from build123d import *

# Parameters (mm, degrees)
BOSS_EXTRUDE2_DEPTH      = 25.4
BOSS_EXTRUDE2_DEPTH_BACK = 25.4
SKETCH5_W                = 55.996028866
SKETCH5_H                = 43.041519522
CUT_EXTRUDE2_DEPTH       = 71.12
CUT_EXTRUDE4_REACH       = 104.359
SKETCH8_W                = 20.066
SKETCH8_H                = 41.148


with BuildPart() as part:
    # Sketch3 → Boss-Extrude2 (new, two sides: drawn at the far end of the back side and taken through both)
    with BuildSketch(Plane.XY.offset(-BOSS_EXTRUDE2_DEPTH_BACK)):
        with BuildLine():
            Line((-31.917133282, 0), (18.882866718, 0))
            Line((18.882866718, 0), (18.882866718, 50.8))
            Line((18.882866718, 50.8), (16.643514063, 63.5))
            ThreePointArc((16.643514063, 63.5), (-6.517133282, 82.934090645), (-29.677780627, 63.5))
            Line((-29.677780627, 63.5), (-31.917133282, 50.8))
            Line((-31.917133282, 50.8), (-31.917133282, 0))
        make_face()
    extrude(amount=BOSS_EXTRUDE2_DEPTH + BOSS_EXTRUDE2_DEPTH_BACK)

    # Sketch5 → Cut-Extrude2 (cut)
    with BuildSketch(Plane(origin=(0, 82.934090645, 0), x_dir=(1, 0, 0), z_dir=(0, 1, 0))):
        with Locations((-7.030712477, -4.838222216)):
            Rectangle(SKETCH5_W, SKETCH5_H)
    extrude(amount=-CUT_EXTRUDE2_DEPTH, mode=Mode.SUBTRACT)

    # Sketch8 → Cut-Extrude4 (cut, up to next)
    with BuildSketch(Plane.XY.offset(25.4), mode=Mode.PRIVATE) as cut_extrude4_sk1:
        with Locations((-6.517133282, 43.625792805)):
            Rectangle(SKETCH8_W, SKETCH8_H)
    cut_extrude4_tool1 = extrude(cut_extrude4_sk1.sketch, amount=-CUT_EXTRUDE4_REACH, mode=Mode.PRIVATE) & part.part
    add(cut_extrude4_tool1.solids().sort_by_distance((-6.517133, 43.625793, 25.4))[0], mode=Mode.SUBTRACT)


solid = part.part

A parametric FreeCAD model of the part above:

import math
import FreeCAD as App
import Part
import Sketcher
from FreeCAD import Vector
Q = App.Units.Quantity


def add_polygon(sketch, points):
    """Adds a closed chain of lines whose ends are joined by coincident constraints."""
    first, n = sketch.GeometryCount, len(points)
    for a, b in zip(points, points[1:] + points[:1]):
        sketch.addGeometry(Part.LineSegment(App.Vector(*a, 0), App.Vector(*b, 0)), False)
    for i in range(n):
        sketch.addConstraint(Sketcher.Constraint("Coincident", first + i, 2, first + (i + 1) % n, 1))

doc = App.newDocument("Part")
body = doc.addObject("PartDesign::Body", "Body")

# Sketch on XY plane
sketch1 = body.newObject("Sketcher::SketchObject", "Sketch")
sketch1.AttachmentSupport = (doc.getObject("XY_Plane"), [""])
sketch1.MapMode = "FlatFace"
sketch1.addGeometry([
    Part.LineSegment(Vector(-32, 0, 0), Vector(19, 0, 0)),  # 0
    Part.LineSegment(Vector(19, 0, 0), Vector(19, 51, 0)),  # 1
    Part.LineSegment(Vector(19, 51, 0), Vector(17, 64, 0)),  # 2
    Part.ArcOfCircle(Part.Circle(Vector(-7, 59, 0), Vector(0, 0, 1), 24), math.radians(10), math.radians(170)),  # 3
    Part.LineSegment(Vector(-30, 64, 0), Vector(-32, 51, 0)),  # 4
    Part.LineSegment(Vector(-32, 51, 0), Vector(-32, 0, 0)),  # 5
], False)
sketch1.addConstraint([
    Sketcher.Constraint("Coincident", 0, 2, 1, 1),
    Sketcher.Constraint("Coincident", 1, 2, 2, 1),
    Sketcher.Constraint("Tangent", 2, 2, 3, 1),
    Sketcher.Constraint("Tangent", 3, 2, 4, 1),
    Sketcher.Constraint("Coincident", 4, 2, 5, 1),
    Sketcher.Constraint("Coincident", 5, 2, 0, 1),
    Sketcher.Constraint("Horizontal", 0),
    Sketcher.Constraint("Vertical", 1),
    Sketcher.Constraint("Vertical", 5),
    Sketcher.Constraint("PointOnObject", 0, 2, -1),
    Sketcher.Constraint("Horizontal", 2, 2, 3, 2),
    Sketcher.Constraint("Horizontal", 1, 2, 4, 2),
    Sketcher.Constraint("Equal", 0, 1),
    Sketcher.Constraint("DistanceX", 0, 1, 0, 2, Q("2 in")),
    Sketcher.Constraint("Angle", 2, Q("100 deg")),
    Sketcher.Constraint("DistanceY", -1, 1, 2, 2, Q("2.5 in")),
    Sketcher.Constraint("DistanceX", 3, 2, -1, 1, Q("29.677781 mm")),
])
pad1 = body.newObject("PartDesign::Pad", "Pad")
pad1.Profile = sketch1
pad1.Type = "TwoLengths"
pad1.Length = Q("1 in")
pad1.Length2 = Q("1 in")

# Sketch on XZ plane
sketch2 = body.newObject("Sketcher::SketchObject", "Sketch001")
sketch2.AttachmentSupport = (doc.getObject("XZ_Plane"), [""])
sketch2.MapMode = "FlatFace"
sketch2.AttachmentOffset = App.Placement(Vector(0, 0, -82.934091), App.Rotation())
add_polygon(sketch2, [(-35, -17), (-35, 26), (21, 26), (21, -17)])  # lines 0-3
sketch2.addConstraint([
    Sketcher.Constraint("Vertical", 0),
    Sketcher.Constraint("Horizontal", 1),
    Sketcher.Constraint("Vertical", 2),
    Sketcher.Constraint("Horizontal", 3),
    Sketcher.Constraint("DistanceX", 1, 1, 1, 2, Q("55.996029 mm")),
    Sketcher.Constraint("DistanceY", 0, 1, 0, 2, Q("43.04152 mm")),
    Sketcher.Constraint("DistanceX", -1, 1, 1, 2, Q("20.967302 mm")),
    Sketcher.Constraint("DistanceY", -1, 1, 0, 2, Q("26.358982 mm")),
])
pocket1 = body.newObject("PartDesign::Pocket", "Pocket")
pocket1.Profile = sketch2
pocket1.Length = Q("2.8 in")
pocket1.Reversed = True

# Sketch on XY plane
sketch3 = body.newObject("Sketcher::SketchObject", "Sketch002")
sketch3.AttachmentSupport = (doc.getObject("XY_Plane"), [""])
sketch3.MapMode = "FlatFace"
sketch3.AttachmentOffset = App.Placement(Vector(0, 0, 1 * 25.4), App.Rotation())
add_polygon(sketch3, [(-17, 64), (-17, 23), (4, 23), (4, 64)])  # lines 0-3
sketch3.addConstraint([
    Sketcher.Constraint("Vertical", 0),
    Sketcher.Constraint("Horizontal", 1),
    Sketcher.Constraint("Vertical", 2),
    Sketcher.Constraint("Horizontal", 3),
    Sketcher.Constraint("DistanceX", 1, 1, 1, 2, Q("0.79 in")),
    Sketcher.Constraint("DistanceY", 0, 2, 0, 1, Q("1.62 in")),
    Sketcher.Constraint("DistanceX", 0, 2, -1, 1, Q("16.550133 mm")),
    Sketcher.Constraint("DistanceY", -1, 1, 0, 2, Q("23.051793 mm")),
])
pocket2 = body.newObject("PartDesign::Pocket", "Pocket001")
pocket2.Profile = sketch3
pocket2.Length = Q("2 in")

doc.recompute()
